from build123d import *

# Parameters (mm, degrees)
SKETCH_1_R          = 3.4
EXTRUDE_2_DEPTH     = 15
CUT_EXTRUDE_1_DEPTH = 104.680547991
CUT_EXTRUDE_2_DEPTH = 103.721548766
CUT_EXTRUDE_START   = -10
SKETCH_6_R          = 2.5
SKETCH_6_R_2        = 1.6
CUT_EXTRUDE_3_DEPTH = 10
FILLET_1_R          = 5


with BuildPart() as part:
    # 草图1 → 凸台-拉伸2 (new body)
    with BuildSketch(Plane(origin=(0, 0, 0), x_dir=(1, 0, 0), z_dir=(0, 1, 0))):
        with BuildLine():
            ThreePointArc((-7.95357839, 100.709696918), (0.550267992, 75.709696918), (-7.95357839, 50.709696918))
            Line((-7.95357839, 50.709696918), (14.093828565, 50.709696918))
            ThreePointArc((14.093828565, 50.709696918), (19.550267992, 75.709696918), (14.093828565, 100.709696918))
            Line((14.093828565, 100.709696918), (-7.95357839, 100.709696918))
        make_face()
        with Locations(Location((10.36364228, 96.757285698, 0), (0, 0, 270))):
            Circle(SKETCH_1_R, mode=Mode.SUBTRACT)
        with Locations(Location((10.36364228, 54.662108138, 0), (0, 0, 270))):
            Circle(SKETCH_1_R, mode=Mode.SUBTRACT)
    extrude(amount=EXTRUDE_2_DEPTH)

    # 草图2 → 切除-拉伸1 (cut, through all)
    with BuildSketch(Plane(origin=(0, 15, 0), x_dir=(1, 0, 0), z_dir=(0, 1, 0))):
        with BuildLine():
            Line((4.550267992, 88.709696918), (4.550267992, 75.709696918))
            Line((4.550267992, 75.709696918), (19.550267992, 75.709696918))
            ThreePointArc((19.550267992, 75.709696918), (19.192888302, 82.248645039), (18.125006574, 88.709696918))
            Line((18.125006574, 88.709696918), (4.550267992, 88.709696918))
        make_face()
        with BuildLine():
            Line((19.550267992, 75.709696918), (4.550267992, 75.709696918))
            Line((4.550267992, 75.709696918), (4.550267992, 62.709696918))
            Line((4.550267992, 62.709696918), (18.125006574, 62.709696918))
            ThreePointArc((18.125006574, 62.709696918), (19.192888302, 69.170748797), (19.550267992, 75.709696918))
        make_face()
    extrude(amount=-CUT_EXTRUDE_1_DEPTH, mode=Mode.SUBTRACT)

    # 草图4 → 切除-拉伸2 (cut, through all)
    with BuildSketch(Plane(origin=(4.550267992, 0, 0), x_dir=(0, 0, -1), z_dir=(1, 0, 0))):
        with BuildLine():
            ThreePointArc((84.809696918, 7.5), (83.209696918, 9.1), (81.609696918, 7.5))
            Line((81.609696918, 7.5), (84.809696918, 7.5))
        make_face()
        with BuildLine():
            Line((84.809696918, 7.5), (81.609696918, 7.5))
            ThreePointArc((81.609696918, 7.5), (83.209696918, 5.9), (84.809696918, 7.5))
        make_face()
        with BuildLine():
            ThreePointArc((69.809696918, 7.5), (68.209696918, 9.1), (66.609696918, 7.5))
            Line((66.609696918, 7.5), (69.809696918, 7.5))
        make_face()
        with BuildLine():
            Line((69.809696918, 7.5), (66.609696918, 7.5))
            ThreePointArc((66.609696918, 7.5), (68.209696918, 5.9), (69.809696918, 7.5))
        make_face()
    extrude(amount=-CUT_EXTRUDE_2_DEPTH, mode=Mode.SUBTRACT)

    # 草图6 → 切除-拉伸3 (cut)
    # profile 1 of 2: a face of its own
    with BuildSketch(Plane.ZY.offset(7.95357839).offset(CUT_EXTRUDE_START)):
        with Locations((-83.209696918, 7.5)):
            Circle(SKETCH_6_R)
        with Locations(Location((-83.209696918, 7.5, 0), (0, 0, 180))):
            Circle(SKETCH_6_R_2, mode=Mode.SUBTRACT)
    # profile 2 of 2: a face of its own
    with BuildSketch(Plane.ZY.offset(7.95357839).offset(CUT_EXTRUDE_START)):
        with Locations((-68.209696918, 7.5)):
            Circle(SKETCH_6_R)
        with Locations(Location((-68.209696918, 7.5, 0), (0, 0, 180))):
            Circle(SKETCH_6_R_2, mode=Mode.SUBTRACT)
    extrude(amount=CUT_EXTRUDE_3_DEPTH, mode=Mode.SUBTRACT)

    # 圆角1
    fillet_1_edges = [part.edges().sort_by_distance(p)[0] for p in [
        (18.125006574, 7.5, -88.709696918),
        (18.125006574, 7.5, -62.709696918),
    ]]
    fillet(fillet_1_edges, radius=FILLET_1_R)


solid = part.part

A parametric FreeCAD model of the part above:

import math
import FreeCAD as App
import Part
import Sketcher
from FreeCAD import Vector


def edges_at(feature, points):
    """Names of the edges that pass closest to the given points."""
    edges = feature.Shape.Edges
    near = lambda p: min(range(len(edges)), key=lambda i: edges[i].distToShape(Part.Vertex(*p))[0])
    return sorted({f"Edge{near(p) + 1}" for p in points})

doc = App.newDocument("Part")
body = doc.addObject("PartDesign::Body", "Body")

# Sketch on XZ plane
sketch1 = doc.addObject("Sketcher::SketchObject", "Sketch")
body.addObject(sketch1)
sketch1.AttachmentSupport = (doc.XZ_Plane, [""])
sketch1.MapMode = "FlatFace"
sketch1.addGeometry([
    Part.ArcOfCircle(Part.Circle(Vector(-40.449732, -75.709697, 0), Vector(0, 0, 1), 41), math.radians(-37.571869), math.radians(37.571869)),  # 0
    Part.LineSegment(Vector(-7.953578, -50.709697, 0), Vector(14.093829, -50.709697, 0)),  # 1
    Part.ArcOfCircle(Part.Circle(Vector(-40.449732, -75.709697, 0), Vector(0, 0, 1), 60), math.radians(-24.624318), math.radians(24.624318)),  # 2
    Part.LineSegment(Vector(14.093829, -100.709697, 0), Vector(-7.953578, -100.709697, 0)),  # 3
    Part.Circle(Vector(10.363642, -54.662108, 0), Vector(0, 0, 1), 3.4),  # 4
    Part.Circle(Vector(10.363642, -96.757286, 0), Vector(0, 0, 1), 3.4),  # 5
], False)
sketch1.addConstraint([
    Sketcher.Constraint("Coincident", 0, 2, 1, 1),
    Sketcher.Constraint("Coincident", 1, 2, 2, 2),
    Sketcher.Constraint("Coincident", 2, 1, 3, 1),
    Sketcher.Constraint("Coincident", 3, 2, 0, 1),
    Sketcher.Constraint("Horizontal", 1),
    Sketcher.Constraint("Horizontal", 3),
    Sketcher.Constraint("Coincident", 2, 3, 0, 3),
    Sketcher.Constraint("Equal", 4, 5),
    Sketcher.Constraint("Vertical", 4, 3, 5, 3),
    Sketcher.Constraint("Vertical", 1, 2, 2, 1),
    Sketcher.Constraint("Radius", 0, 41.0),
    Sketcher.Constraint("Radius", 2, 60.0),
    Sketcher.Constraint("Diameter", 4, 6.8),
    Sketcher.Constraint("DistanceY", 0, 3, 0, 2, 25.0),
    Sketcher.Constraint("DistanceY", 4, 3, -1, 1, 54.662108),
    Sketcher.Constraint("DistanceX", 0, 2, -1, 1, 7.953578),
    Sketcher.Constraint("DistanceY", 0, 3, 4, 3, 21.047589),
    Sketcher.Constraint("DistanceY", 5, 3, 0, 3, 21.047589),
    Sketcher.Constraint("DistanceX", 0, 2, 4, 3, 18.317221),
])
pad1 = doc.addObject("PartDesign::Pad", "Pad")
body.addObject(pad1)
pad1.Profile = sketch1
pad1.Length = 15
pad1.Reversed = True

# Sketch on XZ plane
sketch2 = doc.addObject("Sketcher::SketchObject", "Sketch001")
body.addObject(sketch2)
sketch2.AttachmentSupport = (doc.XZ_Plane, [""])
sketch2.MapMode = "FlatFace"
sketch2.AttachmentOffset = App.Placement(Vector(0, 0, -15), App.Rotation())
sketch2.addGeometry([
    Part.LineSegment(Vector(4.550268, -88.709697, 0), Vector(4.550268, -62.709697, 0)),  # 0
    Part.LineSegment(Vector(4.550268, -62.709697, 0), Vector(18.125007, -62.709697, 0)),  # 1
    Part.ArcOfCircle(Part.Circle(Vector(-40.449732, -75.709697, 0), Vector(0, 0, 1), 60), math.radians(0), math.radians(12.513325)),  # 2
    Part.ArcOfCircle(Part.Circle(Vector(-40.449732, -75.709697, 0), Vector(0, 0, 1), 60), math.radians(-12.513325), math.radians(0)),  # 3
    Part.LineSegment(Vector(18.125007, -88.709697, 0), Vector(4.550268, -88.709697, 0)),  # 4
], False)
sketch2.addConstraint([
    Sketcher.Constraint("Coincident", 0, 2, 1, 1),
    Sketcher.Constraint("Coincident", 1, 2, 2, 2),
    Sketcher.Constraint("Tangent", 2, 1, 3, 2),
    Sketcher.Constraint("Coincident", 3, 1, 4, 1),
    Sketcher.Constraint("Coincident", 4, 2, 0, 1),
    Sketcher.Constraint("Vertical", 0),
    Sketcher.Constraint("Horizontal", 1),
    Sketcher.Constraint("Horizontal", 4),
    Sketcher.Constraint("Equal", 2, 3),
    Sketcher.Constraint("Horizontal", 3, 3, 2, 1),
    Sketcher.Constraint("Vertical", 1, 2, 3, 1),
    Sketcher.Constraint("Radius", 2, 60.0),
    Sketcher.Constraint("DistanceY", 0, 1, 0, 2, 26.0),
    Sketcher.Constraint("DistanceX", 3, 3, 0, 2, 45.0),
    Sketcher.Constraint("DistanceX", 2, 3, -1, 1, 40.449732),
    Sketcher.Constraint("DistanceY", 2, 3, -1, 1, 75.709697),
])
pocket1 = doc.addObject("PartDesign::Pocket", "Pocket")
body.addObject(pocket1)
pocket1.Profile = sketch2
pocket1.Type = "ThroughAll"
pocket1.Reversed = True

# Sketch on YZ plane
sketch3 = doc.addObject("Sketcher::SketchObject", "Sketch002")
body.addObject(sketch3)
sketch3.AttachmentSupport = (doc.YZ_Plane, [""])
sketch3.MapMode = "FlatFace"
sketch3.AttachmentOffset = App.Placement(Vector(0, 0, 4.550268), App.Rotation())
sketch3.addGeometry([
    Part.Circle(Vector(7.5, -83.209697, 0), Vector(0, 0, 1), 1.6),
    Part.Circle(Vector(7.5, -68.209697, 0), Vector(0, 0, 1), 1.6),
], False)
sketch3.addConstraint([
    Sketcher.Constraint("Equal", 0, 1),
    Sketcher.Constraint("Vertical", 0, 3, 1, 3),
    Sketcher.Constraint("Diameter", 0, 3.2),
    Sketcher.Constraint("DistanceY", 0, 3, 1, 3, 15.0),
    Sketcher.Constraint("DistanceX", -1, 1, 0, 3, 7.5),
    Sketcher.Constraint("DistanceY", 0, 3, -1, 1, 83.209697),
])
pocket2 = doc.addObject("PartDesign::Pocket", "Pocket001")
body.addObject(pocket2)
pocket2.Profile = sketch3
pocket2.Type = "ThroughAll"

# Sketch on YZ plane
sketch4 = doc.addObject("Sketcher::SketchObject", "Sketch003")
body.addObject(sketch4)
sketch4.AttachmentSupport = (doc.YZ_Plane, [""])
sketch4.MapMode = "FlatFace"
sketch4.AttachmentOffset = App.Placement(Vector(0, 0, 2.046422), App.Rotation())
sketch4.addGeometry([
    Part.Circle(Vector(7.5, -83.209697, 0), Vector(0, 0, 1), 2.5),
    Part.Circle(Vector(7.5, -83.209697, 0), Vector(0, 0, 1), 1.6),
    Part.Circle(Vector(7.5, -68.209697, 0), Vector(0, 0, 1), 2.5),
    Part.Circle(Vector(7.5, -68.209697, 0), Vector(0, 0, 1), 1.6),
], False)
sketch4.addConstraint([
    Sketcher.Constraint("Coincident", 1, 3, 0, 3),
    Sketcher.Constraint("Coincident", 3, 3, 2, 3),
    Sketcher.Constraint("Equal", 0, 2),
    Sketcher.Constraint("Equal", 1, 3),
    Sketcher.Constraint("Vertical", 1, 3, 2, 3),
    Sketcher.Constraint("Diameter", 0, 5.0),
    Sketcher.Constraint("Diameter", 1, 3.2),
    Sketcher.Constraint("DistanceY", 0, 3, 2, 3, 15.0),
    Sketcher.Constraint("DistanceX", -1, 1, 0, 3, 7.5),
    Sketcher.Constraint("DistanceY", 0, 3, -1, 1, 83.209697),
])
pocket3 = doc.addObject("PartDesign::Pocket", "Pocket002")
body.addObject(pocket3)
pocket3.Profile = sketch4
pocket3.Length = 10
doc.recompute()

fillet = doc.addObject("PartDesign::Fillet", "Fillet")
body.addObject(fillet)
fillet.Base = (pocket3, edges_at(pocket3, [(18.125, 7.5, -88.71), (18.125, 7.5, -62.71)]))
fillet.Radius = 5

doc.recompute()
